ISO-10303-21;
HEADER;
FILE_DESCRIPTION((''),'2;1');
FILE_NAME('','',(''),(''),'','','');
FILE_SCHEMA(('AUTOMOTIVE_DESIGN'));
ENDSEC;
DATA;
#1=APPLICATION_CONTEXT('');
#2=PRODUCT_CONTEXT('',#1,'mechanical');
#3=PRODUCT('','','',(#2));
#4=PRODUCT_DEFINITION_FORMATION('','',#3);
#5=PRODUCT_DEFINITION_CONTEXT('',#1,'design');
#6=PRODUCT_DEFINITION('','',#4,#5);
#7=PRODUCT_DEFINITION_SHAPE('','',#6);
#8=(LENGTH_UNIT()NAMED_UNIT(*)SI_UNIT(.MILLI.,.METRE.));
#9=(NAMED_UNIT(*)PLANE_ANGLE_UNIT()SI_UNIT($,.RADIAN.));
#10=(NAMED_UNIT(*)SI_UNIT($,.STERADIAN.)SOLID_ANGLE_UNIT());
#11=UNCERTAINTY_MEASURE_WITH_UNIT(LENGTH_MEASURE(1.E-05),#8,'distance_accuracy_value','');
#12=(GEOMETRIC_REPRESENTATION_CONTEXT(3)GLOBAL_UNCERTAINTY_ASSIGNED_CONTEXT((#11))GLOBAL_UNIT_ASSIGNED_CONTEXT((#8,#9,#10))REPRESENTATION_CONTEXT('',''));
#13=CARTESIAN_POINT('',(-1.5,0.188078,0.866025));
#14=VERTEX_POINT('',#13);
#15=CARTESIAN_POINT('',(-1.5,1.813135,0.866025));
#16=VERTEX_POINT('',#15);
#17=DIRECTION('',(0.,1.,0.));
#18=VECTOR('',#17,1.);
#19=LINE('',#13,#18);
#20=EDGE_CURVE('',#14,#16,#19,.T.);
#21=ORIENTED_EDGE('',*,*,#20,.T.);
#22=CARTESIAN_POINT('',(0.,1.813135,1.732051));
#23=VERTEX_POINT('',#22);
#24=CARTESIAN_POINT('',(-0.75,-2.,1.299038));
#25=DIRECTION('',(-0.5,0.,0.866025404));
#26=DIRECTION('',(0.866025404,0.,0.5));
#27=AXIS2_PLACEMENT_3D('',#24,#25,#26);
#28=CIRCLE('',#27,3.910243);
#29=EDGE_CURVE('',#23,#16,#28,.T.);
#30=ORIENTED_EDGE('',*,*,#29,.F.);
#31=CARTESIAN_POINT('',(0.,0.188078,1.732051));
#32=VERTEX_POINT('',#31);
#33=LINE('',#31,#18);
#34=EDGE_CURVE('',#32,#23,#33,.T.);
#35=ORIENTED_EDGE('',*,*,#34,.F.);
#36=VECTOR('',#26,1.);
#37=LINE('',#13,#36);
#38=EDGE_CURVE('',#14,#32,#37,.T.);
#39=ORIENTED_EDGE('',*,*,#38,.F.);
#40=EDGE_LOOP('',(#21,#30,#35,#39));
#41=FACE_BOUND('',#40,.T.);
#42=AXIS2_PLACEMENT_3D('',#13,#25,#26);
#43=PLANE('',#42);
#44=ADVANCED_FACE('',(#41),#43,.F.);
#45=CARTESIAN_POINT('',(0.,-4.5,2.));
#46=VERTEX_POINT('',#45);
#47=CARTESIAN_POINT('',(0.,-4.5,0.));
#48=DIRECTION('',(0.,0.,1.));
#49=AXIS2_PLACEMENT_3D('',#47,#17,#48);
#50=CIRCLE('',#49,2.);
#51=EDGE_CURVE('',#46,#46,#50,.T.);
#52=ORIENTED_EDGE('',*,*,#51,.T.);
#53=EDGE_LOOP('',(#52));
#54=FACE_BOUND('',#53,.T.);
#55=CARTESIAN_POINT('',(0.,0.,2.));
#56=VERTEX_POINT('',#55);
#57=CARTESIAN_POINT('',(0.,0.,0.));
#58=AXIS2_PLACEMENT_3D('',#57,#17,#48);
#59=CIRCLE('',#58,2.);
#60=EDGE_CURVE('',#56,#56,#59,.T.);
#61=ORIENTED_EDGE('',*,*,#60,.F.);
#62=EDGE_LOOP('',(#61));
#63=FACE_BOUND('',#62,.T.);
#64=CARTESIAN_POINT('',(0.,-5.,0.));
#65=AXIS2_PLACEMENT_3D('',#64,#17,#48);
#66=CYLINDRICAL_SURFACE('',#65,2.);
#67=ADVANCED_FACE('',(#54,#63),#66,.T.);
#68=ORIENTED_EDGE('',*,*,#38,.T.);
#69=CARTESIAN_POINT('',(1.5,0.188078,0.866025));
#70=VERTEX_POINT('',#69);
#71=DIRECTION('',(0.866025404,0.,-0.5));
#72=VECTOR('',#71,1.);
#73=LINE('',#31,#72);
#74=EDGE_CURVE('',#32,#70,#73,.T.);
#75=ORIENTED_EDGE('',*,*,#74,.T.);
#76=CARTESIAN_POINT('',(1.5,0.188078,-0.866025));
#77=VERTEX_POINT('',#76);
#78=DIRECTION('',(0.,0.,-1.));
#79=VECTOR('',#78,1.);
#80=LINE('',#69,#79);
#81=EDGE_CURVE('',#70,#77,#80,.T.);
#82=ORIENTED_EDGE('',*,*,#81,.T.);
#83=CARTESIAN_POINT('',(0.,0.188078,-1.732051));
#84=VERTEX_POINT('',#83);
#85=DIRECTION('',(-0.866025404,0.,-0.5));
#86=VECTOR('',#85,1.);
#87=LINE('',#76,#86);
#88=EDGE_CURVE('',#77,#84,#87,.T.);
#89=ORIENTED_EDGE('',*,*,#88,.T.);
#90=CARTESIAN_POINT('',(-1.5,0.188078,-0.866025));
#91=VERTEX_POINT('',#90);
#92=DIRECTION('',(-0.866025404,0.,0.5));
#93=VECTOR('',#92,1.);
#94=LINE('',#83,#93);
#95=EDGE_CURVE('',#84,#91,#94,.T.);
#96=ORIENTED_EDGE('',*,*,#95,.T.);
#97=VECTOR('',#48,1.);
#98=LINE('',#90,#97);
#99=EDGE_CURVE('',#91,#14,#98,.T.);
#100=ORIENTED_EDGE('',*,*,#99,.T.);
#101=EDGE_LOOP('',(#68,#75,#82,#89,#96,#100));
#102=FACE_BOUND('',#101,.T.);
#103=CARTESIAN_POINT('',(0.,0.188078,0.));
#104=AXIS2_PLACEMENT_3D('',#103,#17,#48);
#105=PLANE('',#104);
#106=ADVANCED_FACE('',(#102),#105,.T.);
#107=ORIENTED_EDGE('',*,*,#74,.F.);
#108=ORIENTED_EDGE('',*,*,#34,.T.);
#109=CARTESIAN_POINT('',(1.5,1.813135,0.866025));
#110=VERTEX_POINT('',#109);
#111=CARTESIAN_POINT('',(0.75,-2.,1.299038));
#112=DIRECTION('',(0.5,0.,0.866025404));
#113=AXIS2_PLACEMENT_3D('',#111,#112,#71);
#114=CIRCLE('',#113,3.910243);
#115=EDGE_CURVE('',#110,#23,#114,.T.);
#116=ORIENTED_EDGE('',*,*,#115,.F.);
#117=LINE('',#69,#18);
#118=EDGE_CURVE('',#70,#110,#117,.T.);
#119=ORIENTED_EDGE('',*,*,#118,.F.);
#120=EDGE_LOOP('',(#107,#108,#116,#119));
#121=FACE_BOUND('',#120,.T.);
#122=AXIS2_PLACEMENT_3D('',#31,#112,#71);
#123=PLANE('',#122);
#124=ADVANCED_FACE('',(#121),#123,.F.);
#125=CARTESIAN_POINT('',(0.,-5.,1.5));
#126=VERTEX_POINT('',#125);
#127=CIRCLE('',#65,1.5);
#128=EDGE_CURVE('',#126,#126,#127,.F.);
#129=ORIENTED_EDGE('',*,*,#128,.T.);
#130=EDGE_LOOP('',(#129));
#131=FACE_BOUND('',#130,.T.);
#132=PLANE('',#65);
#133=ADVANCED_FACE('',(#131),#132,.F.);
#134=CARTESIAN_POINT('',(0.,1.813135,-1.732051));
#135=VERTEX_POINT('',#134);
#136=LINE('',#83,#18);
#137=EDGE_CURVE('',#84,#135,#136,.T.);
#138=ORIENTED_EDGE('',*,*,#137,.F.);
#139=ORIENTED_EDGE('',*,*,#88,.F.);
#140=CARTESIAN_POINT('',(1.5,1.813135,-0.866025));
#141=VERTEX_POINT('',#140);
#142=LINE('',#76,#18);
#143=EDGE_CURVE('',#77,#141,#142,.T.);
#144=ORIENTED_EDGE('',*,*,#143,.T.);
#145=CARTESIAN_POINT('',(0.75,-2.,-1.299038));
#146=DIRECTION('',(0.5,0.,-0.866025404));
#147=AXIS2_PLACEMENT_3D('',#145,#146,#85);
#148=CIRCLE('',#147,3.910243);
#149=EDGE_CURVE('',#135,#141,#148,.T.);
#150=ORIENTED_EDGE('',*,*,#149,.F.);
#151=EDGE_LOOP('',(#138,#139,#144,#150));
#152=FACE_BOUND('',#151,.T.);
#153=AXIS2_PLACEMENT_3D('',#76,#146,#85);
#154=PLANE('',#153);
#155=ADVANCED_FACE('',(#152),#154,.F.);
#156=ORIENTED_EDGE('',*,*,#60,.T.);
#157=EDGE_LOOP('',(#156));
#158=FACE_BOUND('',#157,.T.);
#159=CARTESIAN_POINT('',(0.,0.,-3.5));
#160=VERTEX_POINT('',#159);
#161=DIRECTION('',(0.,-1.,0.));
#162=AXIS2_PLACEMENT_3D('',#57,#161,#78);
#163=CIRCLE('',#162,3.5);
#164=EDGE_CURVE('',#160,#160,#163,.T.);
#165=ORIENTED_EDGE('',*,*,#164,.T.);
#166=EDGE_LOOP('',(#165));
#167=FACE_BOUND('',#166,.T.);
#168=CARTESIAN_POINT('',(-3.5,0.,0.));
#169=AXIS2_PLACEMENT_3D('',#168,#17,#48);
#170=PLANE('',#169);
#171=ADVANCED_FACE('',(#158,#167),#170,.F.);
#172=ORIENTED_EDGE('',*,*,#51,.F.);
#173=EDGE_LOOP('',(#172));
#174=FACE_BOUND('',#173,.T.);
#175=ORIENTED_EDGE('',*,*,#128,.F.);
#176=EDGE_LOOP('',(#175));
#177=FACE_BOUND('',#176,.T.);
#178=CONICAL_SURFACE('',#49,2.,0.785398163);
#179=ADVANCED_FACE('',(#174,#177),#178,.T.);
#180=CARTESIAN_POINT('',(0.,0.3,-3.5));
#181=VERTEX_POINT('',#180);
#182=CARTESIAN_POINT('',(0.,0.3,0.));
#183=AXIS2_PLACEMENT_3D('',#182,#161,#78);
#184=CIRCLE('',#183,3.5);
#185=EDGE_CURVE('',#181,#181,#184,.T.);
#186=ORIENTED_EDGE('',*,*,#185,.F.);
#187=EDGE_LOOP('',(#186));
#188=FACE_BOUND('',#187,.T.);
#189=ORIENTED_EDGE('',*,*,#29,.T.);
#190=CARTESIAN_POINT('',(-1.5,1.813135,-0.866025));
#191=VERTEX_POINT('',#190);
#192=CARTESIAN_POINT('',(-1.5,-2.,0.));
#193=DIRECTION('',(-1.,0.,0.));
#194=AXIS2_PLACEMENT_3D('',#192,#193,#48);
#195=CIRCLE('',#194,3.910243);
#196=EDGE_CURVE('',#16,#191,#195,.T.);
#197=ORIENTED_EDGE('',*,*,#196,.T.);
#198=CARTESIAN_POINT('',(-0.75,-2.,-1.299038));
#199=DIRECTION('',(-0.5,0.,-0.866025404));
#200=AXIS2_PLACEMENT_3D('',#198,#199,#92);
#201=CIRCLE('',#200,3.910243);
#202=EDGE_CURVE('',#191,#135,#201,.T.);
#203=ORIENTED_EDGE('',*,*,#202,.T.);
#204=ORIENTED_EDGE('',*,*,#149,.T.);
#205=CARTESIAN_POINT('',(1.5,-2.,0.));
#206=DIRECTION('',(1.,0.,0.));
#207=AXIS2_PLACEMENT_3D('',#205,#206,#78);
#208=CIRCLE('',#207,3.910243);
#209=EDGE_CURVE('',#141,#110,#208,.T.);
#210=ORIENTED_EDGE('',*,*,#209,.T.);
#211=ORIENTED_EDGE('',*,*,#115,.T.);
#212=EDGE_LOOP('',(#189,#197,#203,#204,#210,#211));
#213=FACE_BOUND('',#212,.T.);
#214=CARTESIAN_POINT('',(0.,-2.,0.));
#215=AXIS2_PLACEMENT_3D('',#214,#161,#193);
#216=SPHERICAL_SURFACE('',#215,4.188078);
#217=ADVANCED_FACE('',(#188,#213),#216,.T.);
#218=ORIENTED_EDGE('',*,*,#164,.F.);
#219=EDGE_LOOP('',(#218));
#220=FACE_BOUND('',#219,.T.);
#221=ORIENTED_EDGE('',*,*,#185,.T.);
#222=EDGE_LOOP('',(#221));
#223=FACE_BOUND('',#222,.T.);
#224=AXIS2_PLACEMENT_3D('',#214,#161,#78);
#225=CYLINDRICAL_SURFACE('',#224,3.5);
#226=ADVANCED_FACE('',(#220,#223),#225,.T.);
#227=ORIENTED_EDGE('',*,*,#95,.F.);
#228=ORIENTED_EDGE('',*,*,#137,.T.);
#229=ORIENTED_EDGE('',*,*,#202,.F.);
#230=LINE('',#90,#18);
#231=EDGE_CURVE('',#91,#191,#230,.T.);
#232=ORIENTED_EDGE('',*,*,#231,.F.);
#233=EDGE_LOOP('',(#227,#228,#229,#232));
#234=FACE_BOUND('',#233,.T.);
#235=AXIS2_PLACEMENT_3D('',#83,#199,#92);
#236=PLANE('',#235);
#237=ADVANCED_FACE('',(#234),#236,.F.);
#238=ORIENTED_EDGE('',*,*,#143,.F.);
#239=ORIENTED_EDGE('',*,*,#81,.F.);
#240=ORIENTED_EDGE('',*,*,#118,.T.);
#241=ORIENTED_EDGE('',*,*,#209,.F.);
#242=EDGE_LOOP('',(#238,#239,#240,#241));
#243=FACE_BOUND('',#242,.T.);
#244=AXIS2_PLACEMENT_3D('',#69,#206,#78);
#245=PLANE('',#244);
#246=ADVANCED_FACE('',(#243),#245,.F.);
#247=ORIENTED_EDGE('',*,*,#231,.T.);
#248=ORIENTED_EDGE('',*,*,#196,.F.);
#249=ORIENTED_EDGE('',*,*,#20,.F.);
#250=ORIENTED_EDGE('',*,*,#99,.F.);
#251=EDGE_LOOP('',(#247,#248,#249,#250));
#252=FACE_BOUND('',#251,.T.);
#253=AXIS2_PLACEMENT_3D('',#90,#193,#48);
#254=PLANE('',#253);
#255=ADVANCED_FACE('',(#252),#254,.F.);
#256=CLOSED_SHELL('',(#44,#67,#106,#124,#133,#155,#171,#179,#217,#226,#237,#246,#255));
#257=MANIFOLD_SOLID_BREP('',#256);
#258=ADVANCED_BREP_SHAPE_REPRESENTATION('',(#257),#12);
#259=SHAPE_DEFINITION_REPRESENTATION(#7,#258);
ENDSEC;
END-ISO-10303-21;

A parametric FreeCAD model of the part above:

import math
import FreeCAD as App
import Part
import Sketcher

V = App.Vector
Q = App.Units.Quantity


def edges_at(feature, points):
    """Names of the edges that pass closest to the given points."""
    edges = feature.Shape.Edges
    near = lambda p: min(range(len(edges)), key=lambda i: edges[i].distToShape(Part.Vertex(*p))[0])
    return sorted({f"Edge{near(p) + 1}" for p in points})

doc = App.newDocument("Part")
body = doc.addObject("PartDesign::Body", "Body")

sketch1 = doc.addObject("Sketcher::SketchObject", "Sketch")
body.addObject(sketch1)
sketch1.AttachmentSupport = (doc.XZ_Plane, [""])
sketch1.MapMode = "FlatFace"
sketch1.addGeometry(Part.Circle(V(0, 0, 0), V(0, 0, 1), 2), False)
sketch1.addConstraint([
    Sketcher.Constraint("Coincident", 0, 3, -1, 1),
    Sketcher.Constraint("Diameter", 0, 4.0),
])
pad1 = doc.addObject("PartDesign::Pad", "Pad")
body.addObject(pad1)
pad1.Profile = sketch1
pad1.Length = 5

sketch2 = doc.addObject("Sketcher::SketchObject", "Sketch001")
body.addObject(sketch2)
sketch2.AttachmentSupport = (doc.XY_Plane, [""])
sketch2.MapMode = "FlatFace"
sketch2.addGeometry([
    Part.LineSegment(V(-3.5, 0.3, 0), V(-3.5, 0, 0)),
    Part.LineSegment(V(-3.5, 0, 0), V(0, 0, 0)),
    Part.LineSegment(V(0, 0, 0), V(0, 2.188078, 0)),
    Part.ArcOfCircle(Part.Circle(V(0, -2, 0), V(0, 0, 1), 4.188078), math.radians(90), math.radians(146.689369)),
], False)
sketch2.addConstraint([
    Sketcher.Constraint("Coincident", 0, 2, 1, 1),
    Sketcher.Constraint("Coincident", 1, 2, 2, 1),
    Sketcher.Constraint("Coincident", 2, 2, 3, 1),
    Sketcher.Constraint("Coincident", 3, 2, 0, 1),
    Sketcher.Constraint("Vertical", 0),
    Sketcher.Constraint("Horizontal", 1),
    Sketcher.Constraint("Vertical", 2),
    Sketcher.Constraint("Coincident", 1, 2, -1, 1),
    Sketcher.Constraint("PointOnObject", 3, 3, -2),
    Sketcher.Constraint("DistanceX", 1, 1, 1, 2, 3.5),
    Sketcher.Constraint("DistanceY", 0, 2, 0, 1, 0.3),
    Sketcher.Constraint("DistanceY", 3, 3, -1, 1, 2.0),
])
revolution = doc.addObject("PartDesign::Revolution", "Revolution")
body.addObject(revolution)
revolution.Profile = sketch2
revolution.ReferenceAxis = (sketch2, ["V_Axis"])
revolution.Angle = 360
doc.recompute()

chamfer = doc.addObject("PartDesign::Chamfer", "Chamfer")
body.addObject(chamfer)
chamfer.Base = (revolution, edges_at(revolution, [(-2, -5, 0)]))
chamfer.Size = 0.5

sketch3 = doc.addObject("Sketcher::SketchObject", "Sketch002")
body.addObject(sketch3)
sketch3.AttachmentSupport = (doc.XZ_Plane, [""])
sketch3.MapMode = "FlatFace"
sketch3.AttachmentOffset = App.Placement(V(0, 0, -2.188078), App.Rotation())
sketch3.addGeometry([
    Part.LineSegment(V(0, -1.732051, 0), V(-1.5, -0.866025, 0)),
    Part.LineSegment(V(-1.5, -0.866025, 0), V(-1.5, 0.866025, 0)),
    Part.LineSegment(V(-1.5, 0.866025, 0), V(0, 1.732051, 0)),
    Part.LineSegment(V(0, 1.732051, 0), V(1.5, 0.866025, 0)),
    Part.LineSegment(V(1.5, 0.866025, 0), V(1.5, -0.866025, 0)),
    Part.LineSegment(V(1.5, -0.866025, 0), V(0, -1.732051, 0)),
], False)
sketch3.addConstraint([
    Sketcher.Constraint("Coincident", 0, 2, 1, 1),
    Sketcher.Constraint("Coincident", 1, 2, 2, 1),
    Sketcher.Constraint("Coincident", 2, 2, 3, 1),
    Sketcher.Constraint("Coincident", 3, 2, 4, 1),
    Sketcher.Constraint("Coincident", 4, 2, 5, 1),
    Sketcher.Constraint("Coincident", 5, 2, 0, 1),
    Sketcher.Constraint("Vertical", 1),
    Sketcher.Constraint("Vertical", 4),
    Sketcher.Constraint("Symmetric", 0, 2, 3, 2, -1, 1),
    Sketcher.Constraint("Symmetric", 2, 2, 5, 2, -1, 1),
    Sketcher.Constraint("PointOnObject", 2, 2, -2),
    Sketcher.Constraint("Parallel", 2, 5),
    Sketcher.Constraint("Horizontal", 1, 2, 3, 2),
    Sketcher.Constraint("Angle", 0, Q("150 deg")),
    Sketcher.Constraint("DistanceX", 1, 2, 3, 2, 3.0),
    Sketcher.Constraint("DistanceY", 1, 1, 1, 2, 1.732051),
])
pocket1 = doc.addObject("PartDesign::Pocket", "Pocket")
body.addObject(pocket1)
pocket1.Profile = sketch3
pocket1.Length = 2
pocket1.Reversed = True

doc.recompute()
